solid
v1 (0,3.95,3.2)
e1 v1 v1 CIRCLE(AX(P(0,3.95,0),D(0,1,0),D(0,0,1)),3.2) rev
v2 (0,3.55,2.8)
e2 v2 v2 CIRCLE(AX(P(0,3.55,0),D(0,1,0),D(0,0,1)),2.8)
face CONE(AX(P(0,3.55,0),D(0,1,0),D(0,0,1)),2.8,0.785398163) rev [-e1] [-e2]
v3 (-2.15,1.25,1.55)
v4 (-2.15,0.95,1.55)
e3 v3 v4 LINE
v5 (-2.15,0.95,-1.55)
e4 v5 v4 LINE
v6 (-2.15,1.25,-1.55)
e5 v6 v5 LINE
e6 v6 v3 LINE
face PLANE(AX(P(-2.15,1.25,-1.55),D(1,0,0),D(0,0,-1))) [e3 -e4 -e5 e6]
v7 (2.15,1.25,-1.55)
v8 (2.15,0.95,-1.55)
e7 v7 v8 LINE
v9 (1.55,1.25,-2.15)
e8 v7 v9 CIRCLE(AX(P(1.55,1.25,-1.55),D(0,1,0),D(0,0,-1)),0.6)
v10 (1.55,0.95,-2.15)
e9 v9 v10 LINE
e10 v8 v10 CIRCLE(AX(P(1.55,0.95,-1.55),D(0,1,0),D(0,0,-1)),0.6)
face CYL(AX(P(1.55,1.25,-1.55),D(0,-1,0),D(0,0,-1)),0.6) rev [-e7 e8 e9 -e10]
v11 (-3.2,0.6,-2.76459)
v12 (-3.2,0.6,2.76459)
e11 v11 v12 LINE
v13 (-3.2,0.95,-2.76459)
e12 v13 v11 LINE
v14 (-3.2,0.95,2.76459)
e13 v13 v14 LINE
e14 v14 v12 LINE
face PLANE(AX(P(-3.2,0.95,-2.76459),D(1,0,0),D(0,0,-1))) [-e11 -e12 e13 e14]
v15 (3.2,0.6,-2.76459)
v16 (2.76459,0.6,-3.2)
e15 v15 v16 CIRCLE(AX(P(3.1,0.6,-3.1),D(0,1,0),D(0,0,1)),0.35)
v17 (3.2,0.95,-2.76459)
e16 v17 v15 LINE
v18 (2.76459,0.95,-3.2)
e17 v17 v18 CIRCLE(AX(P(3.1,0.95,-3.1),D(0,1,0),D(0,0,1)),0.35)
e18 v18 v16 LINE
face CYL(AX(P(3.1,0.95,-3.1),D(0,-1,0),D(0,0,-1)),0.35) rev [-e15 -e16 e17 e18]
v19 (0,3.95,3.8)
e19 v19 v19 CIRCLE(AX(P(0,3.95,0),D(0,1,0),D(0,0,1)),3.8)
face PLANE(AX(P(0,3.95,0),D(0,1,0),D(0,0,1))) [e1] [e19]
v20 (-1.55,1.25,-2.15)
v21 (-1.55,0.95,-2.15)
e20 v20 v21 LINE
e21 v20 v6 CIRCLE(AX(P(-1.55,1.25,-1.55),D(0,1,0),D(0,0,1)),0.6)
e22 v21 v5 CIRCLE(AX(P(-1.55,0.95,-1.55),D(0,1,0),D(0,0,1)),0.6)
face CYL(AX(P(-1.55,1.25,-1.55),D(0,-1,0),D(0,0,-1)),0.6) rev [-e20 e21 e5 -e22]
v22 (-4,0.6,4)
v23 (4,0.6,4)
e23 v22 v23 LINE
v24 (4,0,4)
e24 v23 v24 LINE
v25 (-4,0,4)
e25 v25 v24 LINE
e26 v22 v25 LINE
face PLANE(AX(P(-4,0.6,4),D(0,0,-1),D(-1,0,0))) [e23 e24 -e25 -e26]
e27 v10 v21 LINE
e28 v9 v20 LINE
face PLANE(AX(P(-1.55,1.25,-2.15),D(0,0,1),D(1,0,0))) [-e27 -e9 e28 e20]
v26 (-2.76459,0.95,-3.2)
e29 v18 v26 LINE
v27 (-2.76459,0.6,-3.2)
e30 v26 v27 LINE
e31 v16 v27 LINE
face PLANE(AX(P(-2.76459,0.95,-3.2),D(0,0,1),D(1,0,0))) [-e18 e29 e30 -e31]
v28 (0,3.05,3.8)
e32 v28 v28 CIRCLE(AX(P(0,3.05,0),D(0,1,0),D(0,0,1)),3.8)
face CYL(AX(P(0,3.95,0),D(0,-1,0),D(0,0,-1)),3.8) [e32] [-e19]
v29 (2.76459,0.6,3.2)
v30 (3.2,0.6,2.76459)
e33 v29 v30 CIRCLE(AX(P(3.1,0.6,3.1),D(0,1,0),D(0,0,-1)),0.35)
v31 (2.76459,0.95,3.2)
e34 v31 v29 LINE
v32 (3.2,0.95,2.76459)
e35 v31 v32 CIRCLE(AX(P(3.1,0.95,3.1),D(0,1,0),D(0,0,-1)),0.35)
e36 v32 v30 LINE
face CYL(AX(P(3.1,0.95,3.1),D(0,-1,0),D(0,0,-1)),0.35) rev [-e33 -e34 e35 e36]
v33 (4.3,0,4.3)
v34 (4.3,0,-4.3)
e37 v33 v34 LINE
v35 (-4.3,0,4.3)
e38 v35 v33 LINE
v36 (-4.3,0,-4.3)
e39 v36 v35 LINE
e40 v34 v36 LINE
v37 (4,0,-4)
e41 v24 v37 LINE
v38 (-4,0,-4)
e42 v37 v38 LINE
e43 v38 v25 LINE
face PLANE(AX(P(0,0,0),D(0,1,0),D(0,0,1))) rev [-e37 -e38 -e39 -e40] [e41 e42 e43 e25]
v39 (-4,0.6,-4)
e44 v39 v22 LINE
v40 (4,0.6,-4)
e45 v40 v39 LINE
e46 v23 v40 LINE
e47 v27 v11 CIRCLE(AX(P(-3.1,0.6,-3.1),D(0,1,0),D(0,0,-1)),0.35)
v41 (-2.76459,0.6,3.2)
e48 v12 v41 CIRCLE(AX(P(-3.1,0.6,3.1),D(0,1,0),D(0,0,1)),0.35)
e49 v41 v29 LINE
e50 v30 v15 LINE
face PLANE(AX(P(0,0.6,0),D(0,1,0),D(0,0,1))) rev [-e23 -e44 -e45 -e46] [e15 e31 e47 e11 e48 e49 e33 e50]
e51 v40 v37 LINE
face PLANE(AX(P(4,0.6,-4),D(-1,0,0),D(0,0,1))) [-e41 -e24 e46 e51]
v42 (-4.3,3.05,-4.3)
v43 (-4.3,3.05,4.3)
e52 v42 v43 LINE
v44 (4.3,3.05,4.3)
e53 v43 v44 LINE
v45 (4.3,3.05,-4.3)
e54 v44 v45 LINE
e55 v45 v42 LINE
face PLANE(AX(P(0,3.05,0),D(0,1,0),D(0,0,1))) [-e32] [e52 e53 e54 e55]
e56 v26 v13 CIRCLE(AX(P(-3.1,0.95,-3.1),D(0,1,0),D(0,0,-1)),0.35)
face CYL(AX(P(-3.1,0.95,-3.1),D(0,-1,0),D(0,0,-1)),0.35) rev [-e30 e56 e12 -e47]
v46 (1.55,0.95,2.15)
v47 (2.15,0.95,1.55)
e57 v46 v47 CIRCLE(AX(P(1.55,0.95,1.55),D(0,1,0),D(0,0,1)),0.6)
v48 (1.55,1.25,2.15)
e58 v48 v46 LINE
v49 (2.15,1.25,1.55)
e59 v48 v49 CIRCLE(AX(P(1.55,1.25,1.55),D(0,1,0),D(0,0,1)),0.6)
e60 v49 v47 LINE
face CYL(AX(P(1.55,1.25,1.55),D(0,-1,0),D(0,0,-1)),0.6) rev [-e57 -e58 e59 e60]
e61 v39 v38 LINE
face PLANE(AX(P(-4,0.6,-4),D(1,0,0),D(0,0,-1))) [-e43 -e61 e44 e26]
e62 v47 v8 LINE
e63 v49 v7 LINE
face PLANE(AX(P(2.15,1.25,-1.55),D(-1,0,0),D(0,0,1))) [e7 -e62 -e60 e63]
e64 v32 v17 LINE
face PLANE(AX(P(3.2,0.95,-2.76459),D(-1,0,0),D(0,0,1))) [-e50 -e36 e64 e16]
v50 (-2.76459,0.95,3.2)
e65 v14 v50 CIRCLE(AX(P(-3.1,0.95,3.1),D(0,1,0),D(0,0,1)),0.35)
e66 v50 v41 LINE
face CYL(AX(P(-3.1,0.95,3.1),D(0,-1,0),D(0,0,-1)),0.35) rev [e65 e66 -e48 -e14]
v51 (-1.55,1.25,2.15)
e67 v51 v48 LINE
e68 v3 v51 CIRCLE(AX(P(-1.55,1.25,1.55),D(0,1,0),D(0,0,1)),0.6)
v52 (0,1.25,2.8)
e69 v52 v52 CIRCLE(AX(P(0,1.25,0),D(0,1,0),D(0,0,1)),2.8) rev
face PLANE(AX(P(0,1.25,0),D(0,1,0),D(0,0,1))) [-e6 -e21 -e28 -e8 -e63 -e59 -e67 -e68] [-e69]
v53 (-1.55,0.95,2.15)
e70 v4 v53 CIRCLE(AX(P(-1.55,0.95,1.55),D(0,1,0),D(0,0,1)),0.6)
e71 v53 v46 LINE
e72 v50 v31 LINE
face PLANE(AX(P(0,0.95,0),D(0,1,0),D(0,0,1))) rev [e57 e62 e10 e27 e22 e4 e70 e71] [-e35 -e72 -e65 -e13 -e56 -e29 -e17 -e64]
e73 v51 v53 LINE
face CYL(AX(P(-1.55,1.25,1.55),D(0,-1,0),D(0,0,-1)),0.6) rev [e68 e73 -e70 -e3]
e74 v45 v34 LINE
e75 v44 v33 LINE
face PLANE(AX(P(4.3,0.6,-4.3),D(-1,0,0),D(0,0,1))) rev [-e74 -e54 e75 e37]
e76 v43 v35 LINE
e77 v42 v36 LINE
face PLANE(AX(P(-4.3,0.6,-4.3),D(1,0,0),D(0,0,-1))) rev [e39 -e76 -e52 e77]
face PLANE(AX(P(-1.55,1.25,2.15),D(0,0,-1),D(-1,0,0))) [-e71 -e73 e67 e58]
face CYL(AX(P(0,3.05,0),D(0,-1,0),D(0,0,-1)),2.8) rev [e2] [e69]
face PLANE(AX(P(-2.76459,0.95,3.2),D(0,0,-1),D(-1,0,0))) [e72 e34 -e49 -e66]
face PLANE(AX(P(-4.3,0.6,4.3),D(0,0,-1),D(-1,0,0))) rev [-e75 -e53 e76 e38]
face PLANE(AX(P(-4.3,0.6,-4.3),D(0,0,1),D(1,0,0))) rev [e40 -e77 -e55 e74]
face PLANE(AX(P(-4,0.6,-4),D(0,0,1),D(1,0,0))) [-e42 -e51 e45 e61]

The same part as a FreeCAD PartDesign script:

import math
import FreeCAD as App
import Part
import Sketcher

V = App.Vector
Q = App.Units.Quantity


def edges_at(feature, points):
    """Names of the edges that pass closest to the given points."""
    edges = feature.Shape.Edges
    near = lambda p: min(range(len(edges)), key=lambda i: edges[i].distToShape(Part.Vertex(*p))[0])
    return sorted({f"Edge{near(p) + 1}" for p in points})

doc = App.newDocument("Part")
body = doc.addObject("PartDesign::Body", "Body")

sketch1 = body.newObject("Sketcher::SketchObject", "Sketch")
sketch1.AttachmentSupport = (doc.getObject("XZ_Plane"), [""])
sketch1.MapMode = "FlatFace"
sketch1.addGeometry([
    Part.LineSegment(V(-4.3, -4.3, 0), V(-4.3, 4.3, 0)),
    Part.LineSegment(V(-4.3, 4.3, 0), V(4.3, 4.3, 0)),
    Part.LineSegment(V(4.3, 4.3, 0), V(4.3, -4.3, 0)),
    Part.LineSegment(V(4.3, -4.3, 0), V(-4.3, -4.3, 0)),
    Part.LineSegment(V(4, 4, 0), V(-4, 4, 0)),
    Part.LineSegment(V(-4, 4, 0), V(-4, -4, 0)),
    Part.LineSegment(V(-4, -4, 0), V(4, -4, 0)),
    Part.LineSegment(V(4, -4, 0), V(4, 4, 0)),
], False)
sketch1.addConstraint([
    Sketcher.Constraint("Coincident", 0, 2, 1, 1),
    Sketcher.Constraint("Coincident", 1, 2, 2, 1),
    Sketcher.Constraint("Coincident", 2, 2, 3, 1),
    Sketcher.Constraint("Coincident", 3, 2, 0, 1),
    Sketcher.Constraint("Coincident", 4, 2, 5, 1),
    Sketcher.Constraint("Coincident", 5, 2, 6, 1),
    Sketcher.Constraint("Coincident", 6, 2, 7, 1),
    Sketcher.Constraint("Coincident", 7, 2, 4, 1),
    Sketcher.Constraint("Vertical", 0),
    Sketcher.Constraint("Horizontal", 1),
    Sketcher.Constraint("Vertical", 2),
    Sketcher.Constraint("Horizontal", 3),
    Sketcher.Constraint("Horizontal", 4),
    Sketcher.Constraint("Vertical", 5),
    Sketcher.Constraint("Horizontal", 6),
    Sketcher.Constraint("Vertical", 7),
    Sketcher.Constraint("Symmetric", 0, 2, 2, 2, -1, 1),
    Sketcher.Constraint("Symmetric", 4, 2, 6, 2, -1, 1),
    Sketcher.Constraint("Equal", 3, 0),
    Sketcher.Constraint("Equal", 6, 5),
    Sketcher.Constraint("DistanceX", 4, 2, 4, 1, Q("8 mm")),
    Sketcher.Constraint("DistanceX", 1, 1, 1, 2, Q("8.6 mm")),
])
pad1 = body.newObject("PartDesign::Pad", "Pad")
pad1.Profile = sketch1
pad1.Length = 0.6
pad1.Reversed = True

sketch2 = body.newObject("Sketcher::SketchObject", "Sketch001")
sketch2.AttachmentSupport = (doc.getObject("XZ_Plane"), [""])
sketch2.MapMode = "FlatFace"
sketch2.AttachmentOffset = App.Placement(V(0, 0, -0.6), App.Rotation())
sketch2.addGeometry([
    Part.LineSegment(V(-4.3, -4.3, 0), V(-4.3, 4.3, 0)),
    Part.LineSegment(V(-4.3, 4.3, 0), V(4.3, 4.3, 0)),
    Part.LineSegment(V(4.3, 4.3, 0), V(4.3, -4.3, 0)),
    Part.LineSegment(V(4.3, -4.3, 0), V(-4.3, -4.3, 0)),
    Part.ArcOfCircle(Part.Circle(V(-3.1, -3.1, 0), V(0, 0, 1), 0.35), math.radians(106.60155), math.radians(343.39845)),
    Part.LineSegment(V(-2.76459, -3.2, 0), V(2.76459, -3.2, 0)),
    Part.ArcOfCircle(Part.Circle(V(3.1, -3.1, 0), V(0, 0, 1), 0.35), math.radians(-163.39845), math.radians(73.39845)),
    Part.LineSegment(V(3.2, -2.76459, 0), V(3.2, 2.76459, 0)),
    Part.ArcOfCircle(Part.Circle(V(3.1, 3.1, 0), V(0, 0, 1), 0.35), math.radians(-73.39845), math.radians(163.39845)),
    Part.LineSegment(V(2.76459, 3.2, 0), V(-2.76459, 3.2, 0)),
    Part.ArcOfCircle(Part.Circle(V(-3.1, 3.1, 0), V(0, 0, 1), 0.35), math.radians(16.60155), math.radians(253.39845)),
    Part.LineSegment(V(-3.2, 2.76459, 0), V(-3.2, -2.76459, 0)),
], False)
sketch2.addConstraint([
    Sketcher.Constraint("Coincident", 0, 2, 1, 1),
    Sketcher.Constraint("Coincident", 1, 2, 2, 1),
    Sketcher.Constraint("Coincident", 2, 2, 3, 1),
    Sketcher.Constraint("Coincident", 3, 2, 0, 1),
    Sketcher.Constraint("Coincident", 4, 2, 5, 1),
    Sketcher.Constraint("Coincident", 5, 2, 6, 1),
    Sketcher.Constraint("Coincident", 6, 2, 7, 1),
    Sketcher.Constraint("Coincident", 7, 2, 8, 1),
    Sketcher.Constraint("Coincident", 8, 2, 9, 1),
    Sketcher.Constraint("Coincident", 9, 2, 10, 1),
    Sketcher.Constraint("Coincident", 10, 2, 11, 1),
    Sketcher.Constraint("Coincident", 11, 2, 4, 1),
    Sketcher.Constraint("Vertical", 0),
    Sketcher.Constraint("Horizontal", 1),
    Sketcher.Constraint("Vertical", 2),
    Sketcher.Constraint("Horizontal", 3),
    Sketcher.Constraint("Horizontal", 5),
    Sketcher.Constraint("Vertical", 7),
    Sketcher.Constraint("Horizontal", 9),
    Sketcher.Constraint("Vertical", 11),
    Sketcher.Constraint("Equal", 4, 6),
    Sketcher.Constraint("Equal", 6, 8),
    Sketcher.Constraint("Equal", 8, 10),
    Sketcher.Constraint("Symmetric", 4, 3, 8, 3, -1, 1),
    Sketcher.Constraint("Symmetric", 6, 3, 10, 3, -1, 1),
    Sketcher.Constraint("Symmetric", 0, 2, 2, 2, -1, 1),
    Sketcher.Constraint("Symmetric", 4, 3, 6, 3, -2),
    Sketcher.Constraint("Horizontal", 7, 2, 10, 2),
    Sketcher.Constraint("Vertical", 5, 2, 8, 2),
    Sketcher.Constraint("Equal", 3, 0),
    Sketcher.Constraint("Equal", 9, 7),
    Sketcher.Constraint("Radius", 4, Q("0.35 mm")),
    Sketcher.Constraint("DistanceX", 1, 1, 1, 2, Q("8.6 mm")),
    Sketcher.Constraint("DistanceX", 4, 3, -1, 1, Q("3.1 mm")),
    Sketcher.Constraint("DistanceY", 4, 3, -1, 1, Q("3.1 mm")),
    Sketcher.Constraint("DistanceY", 4, 2, -1, 1, Q("3.2 mm")),
])
pad2 = body.newObject("PartDesign::Pad", "Pad001")
pad2.Profile = sketch2
pad2.Length = 0.35
pad2.Reversed = True

sketch3 = body.newObject("Sketcher::SketchObject", "Sketch002")
sketch3.AttachmentSupport = (doc.getObject("XZ_Plane"), [""])
sketch3.MapMode = "FlatFace"
sketch3.AttachmentOffset = App.Placement(V(0, 0, -0.95), App.Rotation())
sketch3.addGeometry([
    Part.LineSegment(V(-4.3, -4.3, 0), V(-4.3, 4.3, 0)),
    Part.LineSegment(V(-4.3, 4.3, 0), V(4.3, 4.3, 0)),
    Part.LineSegment(V(4.3, 4.3, 0), V(4.3, -4.3, 0)),
    Part.LineSegment(V(4.3, -4.3, 0), V(-4.3, -4.3, 0)),
    Part.ArcOfCircle(Part.Circle(V(-1.55, -1.55, 0), V(0, 0, 1), 0.6), math.radians(180), math.radians(270)),
    Part.LineSegment(V(-1.55, -2.15, 0), V(1.55, -2.15, 0)),
    Part.ArcOfCircle(Part.Circle(V(1.55, -1.55, 0), V(0, 0, 1), 0.6), math.radians(-90), math.radians(0)),
    Part.LineSegment(V(2.15, -1.55, 0), V(2.15, 1.55, 0)),
    Part.ArcOfCircle(Part.Circle(V(1.55, 1.55, 0), V(0, 0, 1), 0.6), math.radians(0), math.radians(90)),
    Part.LineSegment(V(1.55, 2.15, 0), V(-1.55, 2.15, 0)),
    Part.ArcOfCircle(Part.Circle(V(-1.55, 1.55, 0), V(0, 0, 1), 0.6), math.radians(90), math.radians(180)),
    Part.LineSegment(V(-2.15, 1.55, 0), V(-2.15, -1.55, 0)),
], False)
sketch3.addConstraint([
    Sketcher.Constraint("Coincident", 0, 2, 1, 1),
    Sketcher.Constraint("Coincident", 1, 2, 2, 1),
    Sketcher.Constraint("Coincident", 2, 2, 3, 1),
    Sketcher.Constraint("Coincident", 3, 2, 0, 1),
    Sketcher.Constraint("Tangent", 4, 2, 5, 1),
    Sketcher.Constraint("Tangent", 5, 2, 6, 1),
    Sketcher.Constraint("Tangent", 6, 2, 7, 1),
    Sketcher.Constraint("Tangent", 7, 2, 8, 1),
    Sketcher.Constraint("Tangent", 8, 2, 9, 1),
    Sketcher.Constraint("Tangent", 9, 2, 10, 1),
    Sketcher.Constraint("Tangent", 10, 2, 11, 1),
    Sketcher.Constraint("Tangent", 11, 2, 4, 1),
    Sketcher.Constraint("Vertical", 0),
    Sketcher.Constraint("Horizontal", 1),
    Sketcher.Constraint("Vertical", 2),
    Sketcher.Constraint("Horizontal", 3),
    Sketcher.Constraint("Horizontal", 5),
    Sketcher.Constraint("Vertical", 7),
    Sketcher.Constraint("Horizontal", 9),
    Sketcher.Constraint("Vertical", 11),
    Sketcher.Constraint("Equal", 4, 6),
    Sketcher.Constraint("Equal", 6, 8),
    Sketcher.Constraint("Equal", 8, 10),
    Sketcher.Constraint("Symmetric", 4, 3, 8, 3, -1, 1),
    Sketcher.Constraint("Symmetric", 0, 2, 2, 2, -1, 1),
    Sketcher.Constraint("Equal", 3, 0),
    Sketcher.Constraint("Equal", 9, 7),
    Sketcher.Constraint("Radius", 4, Q("0.6 mm")),
    Sketcher.Constraint("DistanceX", 1, 1, 1, 2, Q("8.6 mm")),
    Sketcher.Constraint("DistanceX", 5, 1, 5, 2, Q("3.1 mm")),
])
pad3 = body.newObject("PartDesign::Pad", "Pad002")
pad3.Profile = sketch3
pad3.Length = 0.3
pad3.Reversed = True

sketch4 = body.newObject("Sketcher::SketchObject", "Sketch003")
sketch4.AttachmentSupport = (doc.getObject("XZ_Plane"), [""])
sketch4.MapMode = "FlatFace"
sketch4.AttachmentOffset = App.Placement(V(0, 0, -1.25), App.Rotation())
sketch4.addGeometry([
    Part.LineSegment(V(-4.3, -4.3, 0), V(-4.3, 4.3, 0)),
    Part.LineSegment(V(-4.3, 4.3, 0), V(4.3, 4.3, 0)),
    Part.LineSegment(V(4.3, 4.3, 0), V(4.3, -4.3, 0)),
    Part.LineSegment(V(4.3, -4.3, 0), V(-4.3, -4.3, 0)),
    Part.Circle(V(0, 0, 0), V(0, 0, 1), 2.8),
], False)
sketch4.addConstraint([
    Sketcher.Constraint("Coincident", 0, 2, 1, 1),
    Sketcher.Constraint("Coincident", 1, 2, 2, 1),
    Sketcher.Constraint("Coincident", 2, 2, 3, 1),
    Sketcher.Constraint("Coincident", 3, 2, 0, 1),
    Sketcher.Constraint("Vertical", 0),
    Sketcher.Constraint("Horizontal", 1),
    Sketcher.Constraint("Vertical", 2),
    Sketcher.Constraint("Horizontal", 3),
    Sketcher.Constraint("Coincident", 4, 3, -1, 1),
    Sketcher.Constraint("Symmetric", 0, 2, 2, 2, -1, 1),
    Sketcher.Constraint("Equal", 3, 0),
    Sketcher.Constraint("Diameter", 4, Q("5.6 mm")),
    Sketcher.Constraint("DistanceX", 1, 1, 1, 2, Q("8.6 mm")),
])
pad4 = body.newObject("PartDesign::Pad", "Pad003")
pad4.Profile = sketch4
pad4.Length = 1.8
pad4.Reversed = True

sketch5 = body.newObject("Sketcher::SketchObject", "Sketch004")
sketch5.AttachmentSupport = (doc.getObject("XZ_Plane"), [""])
sketch5.MapMode = "FlatFace"
sketch5.AttachmentOffset = App.Placement(V(0, 0, -3.05), App.Rotation())
sketch5.addGeometry([
    Part.Circle(V(0, 0, 0), V(0, 0, 1), 3.8),
    Part.Circle(V(0, 0, 0), V(0, 0, 1), 2.8),
], False)
sketch5.addConstraint([
    Sketcher.Constraint("Coincident", 0, 3, -1, 1),
    Sketcher.Constraint("Coincident", 1, 3, -1, 1),
    Sketcher.Constraint("Diameter", 0, Q("7.6 mm")),
    Sketcher.Constraint("Diameter", 1, Q("5.6 mm")),
])
pad5 = body.newObject("PartDesign::Pad", "Pad004")
pad5.Profile = sketch5
pad5.Length = 0.9
pad5.Reversed = True
doc.recompute()

chamfer = body.newObject("PartDesign::Chamfer", "Chamfer")
chamfer.Base = (pad5, edges_at(pad5, [(0, 3.95, -2.8)]))
chamfer.Size = 0.4

doc.recompute()
